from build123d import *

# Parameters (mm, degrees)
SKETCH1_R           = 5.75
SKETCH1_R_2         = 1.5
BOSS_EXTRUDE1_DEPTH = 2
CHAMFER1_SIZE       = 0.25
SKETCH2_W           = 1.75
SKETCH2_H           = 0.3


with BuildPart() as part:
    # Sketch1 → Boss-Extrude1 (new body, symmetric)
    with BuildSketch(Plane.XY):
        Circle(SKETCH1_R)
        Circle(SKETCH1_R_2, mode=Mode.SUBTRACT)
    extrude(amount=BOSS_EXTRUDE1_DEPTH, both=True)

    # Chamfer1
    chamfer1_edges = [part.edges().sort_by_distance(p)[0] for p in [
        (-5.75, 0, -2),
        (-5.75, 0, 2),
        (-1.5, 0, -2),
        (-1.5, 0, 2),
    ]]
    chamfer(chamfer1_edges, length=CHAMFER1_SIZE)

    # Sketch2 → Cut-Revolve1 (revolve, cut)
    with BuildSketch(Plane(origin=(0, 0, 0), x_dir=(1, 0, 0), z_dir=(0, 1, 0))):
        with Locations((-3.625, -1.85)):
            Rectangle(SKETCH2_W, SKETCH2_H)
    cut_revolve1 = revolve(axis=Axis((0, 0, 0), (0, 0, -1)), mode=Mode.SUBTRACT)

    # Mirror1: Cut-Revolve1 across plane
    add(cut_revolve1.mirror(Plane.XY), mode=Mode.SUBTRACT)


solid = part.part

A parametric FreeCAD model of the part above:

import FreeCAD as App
import Part
import Sketcher


def edges_at(feature, points):
    """Names of the edges that pass closest to the given points."""
    edges = feature.Shape.Edges
    near = lambda p: min(range(len(edges)), key=lambda i: edges[i].distToShape(Part.Vertex(*p))[0])
    return sorted({f"Edge{near(p) + 1}" for p in points})


def add_polygon(sketch, points):
    """Adds a closed chain of lines whose ends are joined by coincident constraints."""
    first, n = sketch.GeometryCount, len(points)
    for a, b in zip(points, points[1:] + points[:1]):
        sketch.addGeometry(Part.LineSegment(App.Vector(*a, 0), App.Vector(*b, 0)), False)
    for i in range(n):
        sketch.addConstraint(Sketcher.Constraint("Coincident", first + i, 2, first + (i + 1) % n, 1))

doc = App.newDocument("Part")
params = doc.addObject("Spreadsheet::Sheet", "Params")
for row, (alias, value) in enumerate([
    ("sketch1_diameter", "3 mm"),
    ("sketch1_diameter2", "11.5 mm"),
    ("pad1_length", "4 mm"),
    ("chamfer_size", "0.25 mm"),
    ("sketch2_height", "0.3 mm"),
    ("sketch2_width", "1.75 mm"),
    ("groove_angle", "360 deg"),
], start=1):
    params.set(f"A{row}", alias)
    params.set(f"B{row}", "=" + value)
    params.setAlias(f"B{row}", alias)

body = doc.addObject("PartDesign::Body", "Body")

sketch1 = body.newObject("Sketcher::SketchObject", "Sketch")
sketch1.AttachmentSupport = (doc.getObject("XY_Plane"), [""])
sketch1.MapMode = "FlatFace"
sketch1.addGeometry([
    Part.Circle(App.Vector(0, 0, 0), App.Vector(0, 0, 1), 5.8),
    Part.Circle(App.Vector(0, 0, 0), App.Vector(0, 0, 1), 1.5),
], False)
sketch1.addConstraint([
    Sketcher.Constraint("Coincident", 0, 3, -1, 1),
    Sketcher.Constraint("Coincident", 1, 3, -1, 1),
    Sketcher.Constraint("Diameter", 1, 3.0),
    Sketcher.Constraint("Diameter", 0, 11.5),
])
sketch1.setExpression("Constraints[2]", "Params.sketch1_diameter")
sketch1.setExpression("Constraints[3]", "Params.sketch1_diameter2")
pad1 = body.newObject("PartDesign::Pad", "Pad")
pad1.Profile = sketch1
pad1.setExpression("Length", "Params.pad1_length")
pad1.Midplane = True
doc.recompute()

chamfer = body.newObject("PartDesign::Chamfer", "Chamfer")
chamfer.Base = (pad1, edges_at(pad1, [
    (-5.75, 0, -2),
    (-5.75, 0, 2),
    (-1.5, 0, -2),
    (-1.5, 0, 2),
]))
chamfer.setExpression("Size", "Params.chamfer_size")

sketch2 = body.newObject("Sketcher::SketchObject", "Sketch001")
sketch2.AttachmentSupport = (doc.getObject("XZ_Plane"), [""])
sketch2.MapMode = "FlatFace"
add_polygon(sketch2, [(-4.5, 1.7), (-4.5, 2), (-2.75, 2), (-2.75, 1.7)])
sketch2.addConstraint([
    Sketcher.Constraint("Vertical", 0),
    Sketcher.Constraint("Horizontal", 1),
    Sketcher.Constraint("Vertical", 2),
    Sketcher.Constraint("Horizontal", 3),
    Sketcher.Constraint("DistanceY", 0, 1, 0, 2, 0.3),
    Sketcher.Constraint("DistanceY", -1, 1, 0, 2, 2.0),
    Sketcher.Constraint("DistanceX", 1, 1, 1, 2, 1.75),
    Sketcher.Constraint("DistanceX", 0, 2, -1, 1, 4.5),
])
sketch2.setExpression("Constraints[8]", "Params.sketch2_height")
sketch2.setExpression("Constraints[10]", "Params.sketch2_width")
groove = body.newObject("PartDesign::Groove", "Groove")
groove.Profile = sketch2
groove.ReferenceAxis = (sketch2, ["V_Axis"])
groove.setExpression("Angle", "Params.groove_angle")
doc.recompute()

mirrored = body.newObject("PartDesign::Mirrored", "Mirrored")
mirrored.Originals = [groove]
mirrored.MirrorPlane = (doc.getObject("XY_Plane"), [""])
body.Tip = mirrored

doc.recompute()
